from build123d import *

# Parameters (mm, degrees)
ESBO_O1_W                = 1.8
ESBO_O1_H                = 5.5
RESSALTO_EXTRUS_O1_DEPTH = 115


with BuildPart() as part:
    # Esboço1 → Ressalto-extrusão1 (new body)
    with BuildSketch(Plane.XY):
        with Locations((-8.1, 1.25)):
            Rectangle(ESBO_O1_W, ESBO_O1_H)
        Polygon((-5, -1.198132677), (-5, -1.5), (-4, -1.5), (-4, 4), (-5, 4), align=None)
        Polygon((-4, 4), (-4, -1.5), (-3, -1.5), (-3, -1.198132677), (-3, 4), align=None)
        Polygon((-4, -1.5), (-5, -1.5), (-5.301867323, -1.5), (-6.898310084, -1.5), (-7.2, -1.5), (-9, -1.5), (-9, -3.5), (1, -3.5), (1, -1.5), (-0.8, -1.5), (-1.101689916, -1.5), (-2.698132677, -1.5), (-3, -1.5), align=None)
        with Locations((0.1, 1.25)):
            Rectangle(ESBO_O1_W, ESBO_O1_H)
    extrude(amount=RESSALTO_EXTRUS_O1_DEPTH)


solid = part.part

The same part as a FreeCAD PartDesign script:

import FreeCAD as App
import Part
import Sketcher

V = App.Vector

doc = App.newDocument("Part")
params = doc.addObject("Spreadsheet::Sheet", "Params")
for row, (alias, value) in enumerate([
    ("sketch1_width", "10 mm"),
    ("sketch1_width2", "2 mm"),
    ("sketch1_width3", "1.8 mm"),
    ("sketch1_height", "7.5 mm"),
    ("sketch1_height2", "5.5 mm"),
    ("pad1_length", "115 mm"),
], start=1):
    params.set(f"A{row}", alias)
    params.set(f"B{row}", "=" + value)
    params.setAlias(f"B{row}", alias)

body = doc.addObject("PartDesign::Body", "Body")

# Sketch on XY plane
sketch1 = body.newObject("Sketcher::SketchObject", "Sketch")
sketch1.AttachmentSupport = (doc.getObject("XY_Plane"), [""])
sketch1.MapMode = "FlatFace"
sketch1.addGeometry([
    Part.LineSegment(V(-9, 4, 0), V(-9, -3.5, 0)),  # 0
    Part.LineSegment(V(-9, -3.5, 0), V(1, -3.5, 0)),  # 1
    Part.LineSegment(V(1, -3.5, 0), V(1, 4, 0)),  # 2
    Part.LineSegment(V(1, 4, 0), V(-0.8, 4, 0)),  # 3
    Part.LineSegment(V(-0.8, 4, 0), V(-0.8, -1.5, 0)),  # 4
    Part.LineSegment(V(-0.8, -1.5, 0), V(-3, -1.5, 0)),  # 5
    Part.LineSegment(V(-3, -1.5, 0), V(-3, 4, 0)),  # 6
    Part.LineSegment(V(-3, 4, 0), V(-5, 4, 0)),  # 7
    Part.LineSegment(V(-5, 4, 0), V(-5, -1.5, 0)),  # 8
    Part.LineSegment(V(-5, -1.5, 0), V(-7.2, -1.5, 0)),  # 9
    Part.LineSegment(V(-7.2, -1.5, 0), V(-7.2, 4, 0)),  # 10
    Part.LineSegment(V(-7.2, 4, 0), V(-9, 4, 0)),  # 11
], False)
sketch1.addConstraint([
    Sketcher.Constraint("Coincident", 0, 2, 1, 1),
    Sketcher.Constraint("Coincident", 1, 2, 2, 1),
    Sketcher.Constraint("Coincident", 2, 2, 3, 1),
    Sketcher.Constraint("Coincident", 3, 2, 4, 1),
    Sketcher.Constraint("Coincident", 4, 2, 5, 1),
    Sketcher.Constraint("Coincident", 5, 2, 6, 1),
    Sketcher.Constraint("Coincident", 6, 2, 7, 1),
    Sketcher.Constraint("Coincident", 7, 2, 8, 1),
    Sketcher.Constraint("Coincident", 8, 2, 9, 1),
    Sketcher.Constraint("Coincident", 9, 2, 10, 1),
    Sketcher.Constraint("Coincident", 10, 2, 11, 1),
    Sketcher.Constraint("Coincident", 11, 2, 0, 1),
    Sketcher.Constraint("Vertical", 0),
    Sketcher.Constraint("Horizontal", 1),
    Sketcher.Constraint("Vertical", 2),
    Sketcher.Constraint("Horizontal", 3),
    Sketcher.Constraint("Vertical", 4),
    Sketcher.Constraint("Horizontal", 5),
    Sketcher.Constraint("Vertical", 6),
    Sketcher.Constraint("Horizontal", 7),
    Sketcher.Constraint("Vertical", 8),
    Sketcher.Constraint("Horizontal", 9),
    Sketcher.Constraint("Vertical", 10),
    Sketcher.Constraint("Horizontal", 11),
    Sketcher.Constraint("Horizontal", 3, 2, 6, 2),
    Sketcher.Constraint("Horizontal", 5, 2, 8, 2),
    Sketcher.Constraint("Horizontal", 7, 2, 10, 2),
    Sketcher.Constraint("Equal", 5, 9),
    Sketcher.Constraint("Equal", 3, 11),
    Sketcher.Constraint("DistanceX", 1, 1, 1, 2, 10.0),
    Sketcher.Constraint("DistanceX", 7, 2, 7, 1, 2.0),
    Sketcher.Constraint("DistanceX", 3, 2, 3, 1, 1.8),
    Sketcher.Constraint("DistanceY", 0, 2, 0, 1, 7.5),
    Sketcher.Constraint("DistanceY", 4, 2, 4, 1, 5.5),
    Sketcher.Constraint("DistanceX", 0, 2, -1, 1, 9.0),
    Sketcher.Constraint("DistanceY", -1, 1, 2, 2, 4.0),
])
sketch1.setExpression("Constraints[29]", "Params.sketch1_width")
sketch1.setExpression("Constraints[30]", "Params.sketch1_width2")
sketch1.setExpression("Constraints[31]", "Params.sketch1_width3")
sketch1.setExpression("Constraints[32]", "Params.sketch1_height")
sketch1.setExpression("Constraints[33]", "Params.sketch1_height2")
pad1 = body.newObject("PartDesign::Pad", "Pad")
pad1.Profile = sketch1
pad1.setExpression("Length", "Params.pad1_length")

doc.recompute()
